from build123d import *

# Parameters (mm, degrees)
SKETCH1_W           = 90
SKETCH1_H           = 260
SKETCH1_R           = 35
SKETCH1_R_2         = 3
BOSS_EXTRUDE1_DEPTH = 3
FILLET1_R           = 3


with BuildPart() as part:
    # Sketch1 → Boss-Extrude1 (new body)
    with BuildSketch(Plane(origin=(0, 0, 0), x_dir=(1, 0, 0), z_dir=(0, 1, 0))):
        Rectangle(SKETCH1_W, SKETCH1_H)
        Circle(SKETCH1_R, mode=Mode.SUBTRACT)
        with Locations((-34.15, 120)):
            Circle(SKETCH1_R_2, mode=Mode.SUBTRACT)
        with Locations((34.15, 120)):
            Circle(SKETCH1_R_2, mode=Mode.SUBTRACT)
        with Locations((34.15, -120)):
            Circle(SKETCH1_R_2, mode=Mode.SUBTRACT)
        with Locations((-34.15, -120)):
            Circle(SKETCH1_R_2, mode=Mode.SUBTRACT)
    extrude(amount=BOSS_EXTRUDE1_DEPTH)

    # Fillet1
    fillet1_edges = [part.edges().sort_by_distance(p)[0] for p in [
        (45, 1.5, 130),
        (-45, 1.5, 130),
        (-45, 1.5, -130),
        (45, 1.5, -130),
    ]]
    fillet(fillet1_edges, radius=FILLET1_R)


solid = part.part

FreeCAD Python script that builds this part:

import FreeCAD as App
import Part
import Sketcher

V = App.Vector


def edges_at(feature, points):
    """Names of the edges that pass closest to the given points."""
    edges = feature.Shape.Edges
    near = lambda p: min(range(len(edges)), key=lambda i: edges[i].distToShape(Part.Vertex(*p))[0])
    return sorted({f"Edge{near(p) + 1}" for p in points})

doc = App.newDocument("Part")
body = doc.addObject("PartDesign::Body", "Body")

# Sketch on XZ plane
sketch1 = body.newObject("Sketcher::SketchObject", "Sketch")
sketch1.AttachmentSupport = (doc.getObject("XZ_Plane"), [""])
sketch1.MapMode = "FlatFace"
sketch1.addGeometry(Part.LineSegment(V(-45, -130, 0), V(-45, 130, 0)), False)
sketch1.addGeometry(Part.LineSegment(V(-45, 130, 0), V(45, 130, 0)), False)
sketch1.addGeometry(Part.LineSegment(V(45, 130, 0), V(45, -130, 0)), False)
sketch1.addGeometry(Part.LineSegment(V(45, -130, 0), V(-45, -130, 0)), False)
sketch1.addGeometry(Part.Circle(V(-34.1, 120, 0), V(0, 0, 1), 3), False)
sketch1.addGeometry(Part.Circle(V(34.1, 120, 0), V(0, 0, 1), 3), False)
sketch1.addGeometry(Part.Circle(V(-34.1, -120, 0), V(0, 0, 1), 3), False)
sketch1.addGeometry(Part.Circle(V(0, 0, 0), V(0, 0, 1), 35), False)
sketch1.addGeometry(Part.Circle(V(34.1, -120, 0), V(0, 0, 1), 3), False)
sketch1.addConstraint(Sketcher.Constraint("Coincident", 0, 2, 1, 1))
sketch1.addConstraint(Sketcher.Constraint("Coincident", 1, 2, 2, 1))
sketch1.addConstraint(Sketcher.Constraint("Coincident", 2, 2, 3, 1))
sketch1.addConstraint(Sketcher.Constraint("Coincident", 3, 2, 0, 1))
sketch1.addConstraint(Sketcher.Constraint("Vertical", 0))
sketch1.addConstraint(Sketcher.Constraint("Horizontal", 1))
sketch1.addConstraint(Sketcher.Constraint("Vertical", 2))
sketch1.addConstraint(Sketcher.Constraint("Horizontal", 3))
sketch1.addConstraint(Sketcher.Constraint("Coincident", 7, 3, -1, 1))
sketch1.addConstraint(Sketcher.Constraint("Equal", 4, 5))
sketch1.addConstraint(Sketcher.Constraint("Equal", 5, 6))
sketch1.addConstraint(Sketcher.Constraint("Equal", 6, 8))
sketch1.addConstraint(Sketcher.Constraint("Symmetric", 5, 3, 6, 3, -1, 1))
sketch1.addConstraint(Sketcher.Constraint("Symmetric", 4, 3, 8, 3, -1, 1))
sketch1.addConstraint(Sketcher.Constraint("Symmetric", 0, 2, 2, 2, -1, 1))
sketch1.addConstraint(Sketcher.Constraint("Symmetric", 4, 3, 5, 3, -2))
sketch1.addConstraint(Sketcher.Constraint("Diameter", 4, 6.0))
sketch1.addConstraint(Sketcher.Constraint("Diameter", 7, 70.0))
sketch1.addConstraint(Sketcher.Constraint("DistanceX", 1, 1, 1, 2, 90.0))
sketch1.addConstraint(Sketcher.Constraint("DistanceY", 0, 1, 0, 2, 260.0))
sketch1.addConstraint(Sketcher.Constraint("DistanceY", -1, 1, 4, 3, 120.0))
sketch1.addConstraint(Sketcher.Constraint("DistanceX", 4, 3, 5, 3, 68.3))
pad1 = body.newObject("PartDesign::Pad", "Pad")
pad1.Profile = sketch1
pad1.Length = 3
pad1.Reversed = True
doc.recompute()

fillet = body.newObject("PartDesign::Fillet", "Fillet")
fillet.Base = (pad1, edges_at(pad1, [
    (45, 1.5, 130),
    (-45, 1.5, 130),
    (-45, 1.5, -130),
    (45, 1.5, -130),
]))
fillet.Radius = 3

doc.recompute()
